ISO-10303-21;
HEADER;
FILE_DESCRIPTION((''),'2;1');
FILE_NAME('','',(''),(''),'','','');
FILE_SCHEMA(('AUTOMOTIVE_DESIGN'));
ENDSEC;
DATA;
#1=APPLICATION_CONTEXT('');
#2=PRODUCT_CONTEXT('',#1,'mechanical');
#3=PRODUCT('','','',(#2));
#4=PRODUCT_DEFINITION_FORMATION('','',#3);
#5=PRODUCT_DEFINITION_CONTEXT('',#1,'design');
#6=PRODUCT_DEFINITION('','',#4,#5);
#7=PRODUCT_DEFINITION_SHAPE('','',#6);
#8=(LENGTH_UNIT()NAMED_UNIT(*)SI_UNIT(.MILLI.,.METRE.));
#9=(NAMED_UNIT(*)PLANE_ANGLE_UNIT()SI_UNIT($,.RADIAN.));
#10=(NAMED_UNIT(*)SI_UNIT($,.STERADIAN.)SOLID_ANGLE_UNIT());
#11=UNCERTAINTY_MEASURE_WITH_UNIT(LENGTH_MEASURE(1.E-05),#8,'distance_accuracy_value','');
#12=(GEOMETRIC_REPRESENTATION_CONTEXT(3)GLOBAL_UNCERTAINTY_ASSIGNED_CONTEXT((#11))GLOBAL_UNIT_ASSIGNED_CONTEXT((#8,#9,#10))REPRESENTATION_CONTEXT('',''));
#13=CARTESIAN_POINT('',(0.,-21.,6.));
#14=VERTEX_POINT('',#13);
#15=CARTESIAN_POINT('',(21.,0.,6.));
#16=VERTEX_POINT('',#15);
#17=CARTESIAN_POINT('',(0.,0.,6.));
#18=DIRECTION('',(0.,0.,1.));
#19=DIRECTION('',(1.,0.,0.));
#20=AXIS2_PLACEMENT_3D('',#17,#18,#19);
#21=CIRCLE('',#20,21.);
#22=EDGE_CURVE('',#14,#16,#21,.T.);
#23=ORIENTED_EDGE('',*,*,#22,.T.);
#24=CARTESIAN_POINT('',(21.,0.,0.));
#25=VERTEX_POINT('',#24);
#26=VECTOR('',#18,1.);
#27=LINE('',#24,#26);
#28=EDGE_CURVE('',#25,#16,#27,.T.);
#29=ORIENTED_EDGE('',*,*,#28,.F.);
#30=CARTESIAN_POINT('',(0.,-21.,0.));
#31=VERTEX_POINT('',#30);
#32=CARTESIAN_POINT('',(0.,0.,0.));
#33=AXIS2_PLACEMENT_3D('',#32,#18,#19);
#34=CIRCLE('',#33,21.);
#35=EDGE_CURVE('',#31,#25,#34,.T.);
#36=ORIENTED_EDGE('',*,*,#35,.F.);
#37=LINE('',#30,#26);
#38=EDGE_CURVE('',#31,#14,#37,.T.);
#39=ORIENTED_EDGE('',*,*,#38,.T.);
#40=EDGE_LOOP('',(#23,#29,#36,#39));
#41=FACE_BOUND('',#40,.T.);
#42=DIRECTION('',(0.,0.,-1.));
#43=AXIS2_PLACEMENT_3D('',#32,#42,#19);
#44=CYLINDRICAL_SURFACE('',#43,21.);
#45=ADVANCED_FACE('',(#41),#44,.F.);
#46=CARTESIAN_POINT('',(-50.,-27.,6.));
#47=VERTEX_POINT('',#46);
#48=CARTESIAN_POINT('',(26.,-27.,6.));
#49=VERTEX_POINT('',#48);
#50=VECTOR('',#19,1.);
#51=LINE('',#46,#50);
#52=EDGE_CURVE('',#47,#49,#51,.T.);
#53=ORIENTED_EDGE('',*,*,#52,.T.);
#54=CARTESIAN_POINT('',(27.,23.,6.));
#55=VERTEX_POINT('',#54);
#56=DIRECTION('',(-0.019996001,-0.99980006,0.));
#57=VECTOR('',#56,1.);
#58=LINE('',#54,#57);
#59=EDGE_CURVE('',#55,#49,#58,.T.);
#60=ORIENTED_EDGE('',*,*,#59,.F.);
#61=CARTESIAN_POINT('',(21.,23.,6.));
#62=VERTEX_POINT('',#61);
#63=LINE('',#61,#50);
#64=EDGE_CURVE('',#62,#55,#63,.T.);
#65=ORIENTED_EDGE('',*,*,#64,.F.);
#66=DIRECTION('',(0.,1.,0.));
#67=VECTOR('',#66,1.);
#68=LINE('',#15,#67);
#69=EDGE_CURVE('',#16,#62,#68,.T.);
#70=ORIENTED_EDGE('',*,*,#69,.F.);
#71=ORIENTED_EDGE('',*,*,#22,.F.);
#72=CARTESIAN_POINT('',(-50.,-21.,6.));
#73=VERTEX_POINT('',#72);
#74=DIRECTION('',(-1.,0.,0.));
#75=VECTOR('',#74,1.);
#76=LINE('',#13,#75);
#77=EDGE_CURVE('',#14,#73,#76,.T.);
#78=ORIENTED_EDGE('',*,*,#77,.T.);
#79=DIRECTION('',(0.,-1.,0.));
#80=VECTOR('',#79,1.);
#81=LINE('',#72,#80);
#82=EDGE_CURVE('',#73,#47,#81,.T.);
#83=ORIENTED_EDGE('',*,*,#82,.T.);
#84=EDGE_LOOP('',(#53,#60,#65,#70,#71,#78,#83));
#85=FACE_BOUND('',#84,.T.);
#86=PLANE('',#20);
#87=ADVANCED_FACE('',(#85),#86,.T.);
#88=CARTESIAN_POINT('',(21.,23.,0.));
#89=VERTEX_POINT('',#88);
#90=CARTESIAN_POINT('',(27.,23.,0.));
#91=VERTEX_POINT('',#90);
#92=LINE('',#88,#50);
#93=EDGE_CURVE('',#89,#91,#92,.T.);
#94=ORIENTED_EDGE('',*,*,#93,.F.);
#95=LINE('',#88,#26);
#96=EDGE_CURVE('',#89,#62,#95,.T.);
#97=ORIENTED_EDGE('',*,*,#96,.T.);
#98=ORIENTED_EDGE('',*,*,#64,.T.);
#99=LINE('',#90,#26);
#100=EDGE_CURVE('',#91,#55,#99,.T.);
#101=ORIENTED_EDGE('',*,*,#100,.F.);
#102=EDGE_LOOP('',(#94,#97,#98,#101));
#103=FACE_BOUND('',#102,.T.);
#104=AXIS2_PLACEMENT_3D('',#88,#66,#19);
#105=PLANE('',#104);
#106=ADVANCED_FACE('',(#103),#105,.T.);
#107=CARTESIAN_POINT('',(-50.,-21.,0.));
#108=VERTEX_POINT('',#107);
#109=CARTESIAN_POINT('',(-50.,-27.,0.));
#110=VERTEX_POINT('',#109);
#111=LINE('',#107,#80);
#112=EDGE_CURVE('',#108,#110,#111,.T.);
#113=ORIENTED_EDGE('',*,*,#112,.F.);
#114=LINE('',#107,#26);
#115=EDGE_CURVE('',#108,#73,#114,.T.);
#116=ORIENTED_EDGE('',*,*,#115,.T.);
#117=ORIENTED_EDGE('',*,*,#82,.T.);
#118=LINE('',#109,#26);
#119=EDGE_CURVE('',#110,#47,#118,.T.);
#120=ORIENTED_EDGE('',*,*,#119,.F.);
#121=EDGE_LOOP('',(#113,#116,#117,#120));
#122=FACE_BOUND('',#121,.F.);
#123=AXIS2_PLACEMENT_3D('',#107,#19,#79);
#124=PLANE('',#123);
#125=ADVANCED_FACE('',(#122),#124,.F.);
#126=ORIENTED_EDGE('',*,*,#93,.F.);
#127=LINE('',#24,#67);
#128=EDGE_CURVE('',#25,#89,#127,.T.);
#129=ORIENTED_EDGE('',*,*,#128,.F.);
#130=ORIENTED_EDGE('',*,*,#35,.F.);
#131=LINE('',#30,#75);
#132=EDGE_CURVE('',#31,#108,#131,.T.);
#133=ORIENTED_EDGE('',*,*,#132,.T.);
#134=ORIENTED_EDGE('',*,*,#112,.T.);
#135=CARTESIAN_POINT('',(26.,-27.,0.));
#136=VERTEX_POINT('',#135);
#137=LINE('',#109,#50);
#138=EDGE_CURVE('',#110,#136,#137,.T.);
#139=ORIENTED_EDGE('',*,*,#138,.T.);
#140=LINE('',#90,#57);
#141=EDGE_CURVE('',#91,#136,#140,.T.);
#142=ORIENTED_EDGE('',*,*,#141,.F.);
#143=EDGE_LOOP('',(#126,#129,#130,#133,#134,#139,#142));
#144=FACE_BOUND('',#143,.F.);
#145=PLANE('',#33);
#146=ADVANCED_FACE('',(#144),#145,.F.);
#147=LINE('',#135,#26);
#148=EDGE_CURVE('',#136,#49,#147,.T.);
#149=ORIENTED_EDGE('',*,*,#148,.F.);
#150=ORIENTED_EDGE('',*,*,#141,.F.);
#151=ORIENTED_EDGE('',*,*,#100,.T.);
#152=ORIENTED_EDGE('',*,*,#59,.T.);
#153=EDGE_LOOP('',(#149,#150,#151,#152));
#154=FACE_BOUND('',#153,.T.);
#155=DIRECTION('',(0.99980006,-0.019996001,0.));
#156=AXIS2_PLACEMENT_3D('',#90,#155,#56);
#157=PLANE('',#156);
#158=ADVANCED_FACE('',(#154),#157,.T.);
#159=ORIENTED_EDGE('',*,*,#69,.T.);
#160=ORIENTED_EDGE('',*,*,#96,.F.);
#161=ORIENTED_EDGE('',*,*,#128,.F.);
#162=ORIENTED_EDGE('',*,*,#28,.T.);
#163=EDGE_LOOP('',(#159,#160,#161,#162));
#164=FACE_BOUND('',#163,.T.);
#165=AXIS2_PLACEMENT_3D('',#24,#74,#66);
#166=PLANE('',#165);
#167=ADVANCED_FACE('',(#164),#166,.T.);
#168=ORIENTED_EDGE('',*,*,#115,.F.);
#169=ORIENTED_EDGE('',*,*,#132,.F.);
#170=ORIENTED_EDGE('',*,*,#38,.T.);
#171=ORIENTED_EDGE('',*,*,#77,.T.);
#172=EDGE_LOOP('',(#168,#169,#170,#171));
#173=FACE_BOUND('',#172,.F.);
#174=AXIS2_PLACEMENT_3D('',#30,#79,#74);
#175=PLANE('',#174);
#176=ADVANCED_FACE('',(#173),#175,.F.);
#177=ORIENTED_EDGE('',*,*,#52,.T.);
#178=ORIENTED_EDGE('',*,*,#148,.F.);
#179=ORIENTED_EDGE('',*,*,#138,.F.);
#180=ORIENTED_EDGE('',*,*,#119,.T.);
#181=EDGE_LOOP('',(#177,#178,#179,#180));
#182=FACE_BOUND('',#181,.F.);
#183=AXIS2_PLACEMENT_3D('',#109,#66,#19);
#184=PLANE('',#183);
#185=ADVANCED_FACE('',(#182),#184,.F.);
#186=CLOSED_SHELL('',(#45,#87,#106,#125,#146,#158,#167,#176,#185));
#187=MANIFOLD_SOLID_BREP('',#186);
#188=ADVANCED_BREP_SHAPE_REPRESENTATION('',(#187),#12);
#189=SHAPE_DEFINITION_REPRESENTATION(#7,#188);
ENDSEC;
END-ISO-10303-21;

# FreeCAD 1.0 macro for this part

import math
import FreeCAD as App
import Part
import Sketcher

V = App.Vector
Q = App.Units.Quantity

doc = App.newDocument("Part")
body = doc.addObject("PartDesign::Body", "Body")

sketch1 = body.newObject("Sketcher::SketchObject", "Sketch")
sketch1.AttachmentSupport = (doc.getObject("XY_Plane"), [""])
sketch1.MapMode = "FlatFace"
sketch1.addGeometry(Part.LineSegment(V(21, 23, 0), V(21, 0, 0)), False)
sketch1.addGeometry(Part.ArcOfCircle(Part.Circle(V(0, 0, 0), V(0, 0, 1), 21), math.radians(-90), math.radians(0)), False)
sketch1.addGeometry(Part.LineSegment(V(0, -21, 0), V(-50, -21, 0)), False)
sketch1.addGeometry(Part.LineSegment(V(-50, -21, 0), V(-50, -27, 0)), False)
sketch1.addGeometry(Part.LineSegment(V(-50, -27, 0), V(26, -27, 0)), False)
sketch1.addGeometry(Part.LineSegment(V(26, -27, 0), V(27, 23, 0)), False)
sketch1.addGeometry(Part.LineSegment(V(27, 23, 0), V(21, 23, 0)), False)
sketch1.addConstraint(Sketcher.Constraint("Tangent", 0, 2, 1, 2))
sketch1.addConstraint(Sketcher.Constraint("Tangent", 1, 1, 2, 1))
sketch1.addConstraint(Sketcher.Constraint("Coincident", 2, 2, 3, 1))
sketch1.addConstraint(Sketcher.Constraint("Coincident", 3, 2, 4, 1))
sketch1.addConstraint(Sketcher.Constraint("Coincident", 4, 2, 5, 1))
sketch1.addConstraint(Sketcher.Constraint("Coincident", 5, 2, 6, 1))
sketch1.addConstraint(Sketcher.Constraint("Coincident", 6, 2, 0, 1))
sketch1.addConstraint(Sketcher.Constraint("Vertical", 0))
sketch1.addConstraint(Sketcher.Constraint("Horizontal", 2))
sketch1.addConstraint(Sketcher.Constraint("Vertical", 3))
sketch1.addConstraint(Sketcher.Constraint("Horizontal", 4))
sketch1.addConstraint(Sketcher.Constraint("Horizontal", 6))
sketch1.addConstraint(Sketcher.Constraint("Coincident", 1, 3, -1, 1))
sketch1.addConstraint(Sketcher.Constraint("Equal", 6, 3))
sketch1.addConstraint(Sketcher.Constraint("Radius", 1, Q("21 mm")))
sketch1.addConstraint(Sketcher.Constraint("DistanceX", 2, 2, 2, 1, Q("50 mm")))
sketch1.addConstraint(Sketcher.Constraint("DistanceX", 6, 2, 6, 1, Q("6 mm")))
sketch1.addConstraint(Sketcher.Constraint("DistanceY", 4, 2, 5, 2, Q("50 mm")))
sketch1.addConstraint(Sketcher.Constraint("DistanceX", 4, 1, 4, 2, Q("76 mm")))
pad1 = body.newObject("PartDesign::Pad", "Pad")
pad1.Profile = sketch1
pad1.Length = 6

doc.recompute()
